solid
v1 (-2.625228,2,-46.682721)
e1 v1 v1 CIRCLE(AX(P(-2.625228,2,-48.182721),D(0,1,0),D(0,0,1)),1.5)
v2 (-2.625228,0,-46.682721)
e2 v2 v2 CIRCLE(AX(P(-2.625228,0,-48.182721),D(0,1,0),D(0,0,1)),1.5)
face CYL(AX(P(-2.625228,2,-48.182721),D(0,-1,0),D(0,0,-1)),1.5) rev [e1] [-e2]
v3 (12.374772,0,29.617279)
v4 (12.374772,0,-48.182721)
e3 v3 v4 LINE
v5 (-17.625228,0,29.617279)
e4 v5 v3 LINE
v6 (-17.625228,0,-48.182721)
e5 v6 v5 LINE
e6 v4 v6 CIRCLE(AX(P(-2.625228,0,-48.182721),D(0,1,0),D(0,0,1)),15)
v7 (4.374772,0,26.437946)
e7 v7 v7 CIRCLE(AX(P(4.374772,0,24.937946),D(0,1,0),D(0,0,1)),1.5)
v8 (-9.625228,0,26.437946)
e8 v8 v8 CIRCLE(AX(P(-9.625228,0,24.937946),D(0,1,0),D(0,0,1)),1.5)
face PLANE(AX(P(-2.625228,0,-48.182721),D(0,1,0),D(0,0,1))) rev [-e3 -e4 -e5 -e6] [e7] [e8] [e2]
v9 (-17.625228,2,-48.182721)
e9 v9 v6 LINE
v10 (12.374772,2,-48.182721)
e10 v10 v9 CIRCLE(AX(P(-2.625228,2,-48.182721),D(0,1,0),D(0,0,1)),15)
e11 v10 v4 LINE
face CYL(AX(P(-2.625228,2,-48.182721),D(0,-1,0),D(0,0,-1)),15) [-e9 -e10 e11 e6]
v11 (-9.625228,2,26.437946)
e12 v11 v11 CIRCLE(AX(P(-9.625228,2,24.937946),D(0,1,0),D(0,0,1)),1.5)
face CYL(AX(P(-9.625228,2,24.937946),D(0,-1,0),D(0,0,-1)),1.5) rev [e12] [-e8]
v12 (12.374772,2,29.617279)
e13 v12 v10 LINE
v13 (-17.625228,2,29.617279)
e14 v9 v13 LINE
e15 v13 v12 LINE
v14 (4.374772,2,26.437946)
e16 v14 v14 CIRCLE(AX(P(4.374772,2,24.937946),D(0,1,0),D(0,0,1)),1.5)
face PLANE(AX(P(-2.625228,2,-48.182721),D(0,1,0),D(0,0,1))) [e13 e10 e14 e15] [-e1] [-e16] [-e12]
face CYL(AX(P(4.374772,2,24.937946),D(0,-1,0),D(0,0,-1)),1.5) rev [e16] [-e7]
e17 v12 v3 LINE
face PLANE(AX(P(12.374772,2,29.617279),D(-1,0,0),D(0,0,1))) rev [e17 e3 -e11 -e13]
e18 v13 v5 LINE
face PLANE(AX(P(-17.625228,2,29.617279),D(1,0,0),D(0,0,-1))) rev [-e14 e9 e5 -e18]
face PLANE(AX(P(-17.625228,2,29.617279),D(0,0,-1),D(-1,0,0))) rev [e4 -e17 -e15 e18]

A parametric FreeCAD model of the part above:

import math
import FreeCAD as App
import Part
import Sketcher

V = App.Vector
Q = App.Units.Quantity

doc = App.newDocument("Part")
params = doc.addObject("Spreadsheet::Sheet", "Params")
for row, (alias, value) in enumerate([
    ("sketch1_diameter", "3 mm"),
    ("sketch1_radius", "15 mm"),
    ("sketch1_height", "77.8 mm"),
    ("pad1_length", "2 mm"),
], start=1):
    params.set(f"A{row}", alias)
    params.set(f"B{row}", "=" + value)
    params.setAlias(f"B{row}", alias)

body = doc.addObject("PartDesign::Body", "Body")

# Sketch on XZ plane
sketch1 = body.newObject("Sketcher::SketchObject", "Sketch")
sketch1.AttachmentSupport = (doc.getObject("XZ_Plane"), [""])
sketch1.MapMode = "FlatFace"
sketch1.addGeometry([
    Part.LineSegment(V(-17.6, 29.6, 0), V(12.4, 29.6, 0)),  # 0
    Part.LineSegment(V(12.4, 29.6, 0), V(12.4, -48.2, 0)),  # 1
    Part.ArcOfCircle(Part.Circle(V(-2.6, -48.2, 0), V(0, 0, 1), 15), math.radians(180), math.radians(360)),  # 2
    Part.LineSegment(V(-17.6, -48.2, 0), V(-17.6, 29.6, 0)),  # 3
    Part.Circle(V(-9.6, 24.9, 0), V(0, 0, 1), 1.5),  # 4
    Part.Circle(V(4.4, 24.9, 0), V(0, 0, 1), 1.5),  # 5
    Part.Circle(V(-2.6, -48.2, 0), V(0, 0, 1), 1.5),  # 6
], False)
sketch1.addConstraint([
    Sketcher.Constraint("Coincident", 0, 2, 1, 1),
    Sketcher.Constraint("Tangent", 1, 2, 2, 2),
    Sketcher.Constraint("Tangent", 2, 1, 3, 1),
    Sketcher.Constraint("Coincident", 3, 2, 0, 1),
    Sketcher.Constraint("Horizontal", 0),
    Sketcher.Constraint("Vertical", 1),
    Sketcher.Constraint("Vertical", 3),
    Sketcher.Constraint("Coincident", 6, 3, 2, 3),
    Sketcher.Constraint("Equal", 4, 5),
    Sketcher.Constraint("Equal", 5, 6),
    Sketcher.Constraint("Horizontal", 4, 3, 5, 3),
    Sketcher.Constraint("Diameter", 4, Q("3 mm")),
    Sketcher.Constraint("Radius", 2, Q("15 mm")),
    Sketcher.Constraint("DistanceY", 1, 2, 1, 1, Q("77.8 mm")),
    Sketcher.Constraint("DistanceX", 4, 3, 2, 3, Q("7 mm")),
    Sketcher.Constraint("DistanceX", 4, 3, 5, 3, Q("14 mm")),
    Sketcher.Constraint("DistanceY", 2, 3, -1, 1, Q("48.182721 mm")),
    Sketcher.Constraint("DistanceX", 2, 3, -1, 1, Q("2.625228 mm")),
    Sketcher.Constraint("DistanceY", -1, 1, 4, 3, Q("24.937946 mm")),
])
sketch1.setExpression("Constraints[11]", "Params.sketch1_diameter")
sketch1.setExpression("Constraints[12]", "Params.sketch1_radius")
sketch1.setExpression("Constraints[13]", "Params.sketch1_height")
pad1 = body.newObject("PartDesign::Pad", "Pad")
pad1.Profile = sketch1
pad1.setExpression("Length", "Params.pad1_length")
pad1.Reversed = True

doc.recompute()
